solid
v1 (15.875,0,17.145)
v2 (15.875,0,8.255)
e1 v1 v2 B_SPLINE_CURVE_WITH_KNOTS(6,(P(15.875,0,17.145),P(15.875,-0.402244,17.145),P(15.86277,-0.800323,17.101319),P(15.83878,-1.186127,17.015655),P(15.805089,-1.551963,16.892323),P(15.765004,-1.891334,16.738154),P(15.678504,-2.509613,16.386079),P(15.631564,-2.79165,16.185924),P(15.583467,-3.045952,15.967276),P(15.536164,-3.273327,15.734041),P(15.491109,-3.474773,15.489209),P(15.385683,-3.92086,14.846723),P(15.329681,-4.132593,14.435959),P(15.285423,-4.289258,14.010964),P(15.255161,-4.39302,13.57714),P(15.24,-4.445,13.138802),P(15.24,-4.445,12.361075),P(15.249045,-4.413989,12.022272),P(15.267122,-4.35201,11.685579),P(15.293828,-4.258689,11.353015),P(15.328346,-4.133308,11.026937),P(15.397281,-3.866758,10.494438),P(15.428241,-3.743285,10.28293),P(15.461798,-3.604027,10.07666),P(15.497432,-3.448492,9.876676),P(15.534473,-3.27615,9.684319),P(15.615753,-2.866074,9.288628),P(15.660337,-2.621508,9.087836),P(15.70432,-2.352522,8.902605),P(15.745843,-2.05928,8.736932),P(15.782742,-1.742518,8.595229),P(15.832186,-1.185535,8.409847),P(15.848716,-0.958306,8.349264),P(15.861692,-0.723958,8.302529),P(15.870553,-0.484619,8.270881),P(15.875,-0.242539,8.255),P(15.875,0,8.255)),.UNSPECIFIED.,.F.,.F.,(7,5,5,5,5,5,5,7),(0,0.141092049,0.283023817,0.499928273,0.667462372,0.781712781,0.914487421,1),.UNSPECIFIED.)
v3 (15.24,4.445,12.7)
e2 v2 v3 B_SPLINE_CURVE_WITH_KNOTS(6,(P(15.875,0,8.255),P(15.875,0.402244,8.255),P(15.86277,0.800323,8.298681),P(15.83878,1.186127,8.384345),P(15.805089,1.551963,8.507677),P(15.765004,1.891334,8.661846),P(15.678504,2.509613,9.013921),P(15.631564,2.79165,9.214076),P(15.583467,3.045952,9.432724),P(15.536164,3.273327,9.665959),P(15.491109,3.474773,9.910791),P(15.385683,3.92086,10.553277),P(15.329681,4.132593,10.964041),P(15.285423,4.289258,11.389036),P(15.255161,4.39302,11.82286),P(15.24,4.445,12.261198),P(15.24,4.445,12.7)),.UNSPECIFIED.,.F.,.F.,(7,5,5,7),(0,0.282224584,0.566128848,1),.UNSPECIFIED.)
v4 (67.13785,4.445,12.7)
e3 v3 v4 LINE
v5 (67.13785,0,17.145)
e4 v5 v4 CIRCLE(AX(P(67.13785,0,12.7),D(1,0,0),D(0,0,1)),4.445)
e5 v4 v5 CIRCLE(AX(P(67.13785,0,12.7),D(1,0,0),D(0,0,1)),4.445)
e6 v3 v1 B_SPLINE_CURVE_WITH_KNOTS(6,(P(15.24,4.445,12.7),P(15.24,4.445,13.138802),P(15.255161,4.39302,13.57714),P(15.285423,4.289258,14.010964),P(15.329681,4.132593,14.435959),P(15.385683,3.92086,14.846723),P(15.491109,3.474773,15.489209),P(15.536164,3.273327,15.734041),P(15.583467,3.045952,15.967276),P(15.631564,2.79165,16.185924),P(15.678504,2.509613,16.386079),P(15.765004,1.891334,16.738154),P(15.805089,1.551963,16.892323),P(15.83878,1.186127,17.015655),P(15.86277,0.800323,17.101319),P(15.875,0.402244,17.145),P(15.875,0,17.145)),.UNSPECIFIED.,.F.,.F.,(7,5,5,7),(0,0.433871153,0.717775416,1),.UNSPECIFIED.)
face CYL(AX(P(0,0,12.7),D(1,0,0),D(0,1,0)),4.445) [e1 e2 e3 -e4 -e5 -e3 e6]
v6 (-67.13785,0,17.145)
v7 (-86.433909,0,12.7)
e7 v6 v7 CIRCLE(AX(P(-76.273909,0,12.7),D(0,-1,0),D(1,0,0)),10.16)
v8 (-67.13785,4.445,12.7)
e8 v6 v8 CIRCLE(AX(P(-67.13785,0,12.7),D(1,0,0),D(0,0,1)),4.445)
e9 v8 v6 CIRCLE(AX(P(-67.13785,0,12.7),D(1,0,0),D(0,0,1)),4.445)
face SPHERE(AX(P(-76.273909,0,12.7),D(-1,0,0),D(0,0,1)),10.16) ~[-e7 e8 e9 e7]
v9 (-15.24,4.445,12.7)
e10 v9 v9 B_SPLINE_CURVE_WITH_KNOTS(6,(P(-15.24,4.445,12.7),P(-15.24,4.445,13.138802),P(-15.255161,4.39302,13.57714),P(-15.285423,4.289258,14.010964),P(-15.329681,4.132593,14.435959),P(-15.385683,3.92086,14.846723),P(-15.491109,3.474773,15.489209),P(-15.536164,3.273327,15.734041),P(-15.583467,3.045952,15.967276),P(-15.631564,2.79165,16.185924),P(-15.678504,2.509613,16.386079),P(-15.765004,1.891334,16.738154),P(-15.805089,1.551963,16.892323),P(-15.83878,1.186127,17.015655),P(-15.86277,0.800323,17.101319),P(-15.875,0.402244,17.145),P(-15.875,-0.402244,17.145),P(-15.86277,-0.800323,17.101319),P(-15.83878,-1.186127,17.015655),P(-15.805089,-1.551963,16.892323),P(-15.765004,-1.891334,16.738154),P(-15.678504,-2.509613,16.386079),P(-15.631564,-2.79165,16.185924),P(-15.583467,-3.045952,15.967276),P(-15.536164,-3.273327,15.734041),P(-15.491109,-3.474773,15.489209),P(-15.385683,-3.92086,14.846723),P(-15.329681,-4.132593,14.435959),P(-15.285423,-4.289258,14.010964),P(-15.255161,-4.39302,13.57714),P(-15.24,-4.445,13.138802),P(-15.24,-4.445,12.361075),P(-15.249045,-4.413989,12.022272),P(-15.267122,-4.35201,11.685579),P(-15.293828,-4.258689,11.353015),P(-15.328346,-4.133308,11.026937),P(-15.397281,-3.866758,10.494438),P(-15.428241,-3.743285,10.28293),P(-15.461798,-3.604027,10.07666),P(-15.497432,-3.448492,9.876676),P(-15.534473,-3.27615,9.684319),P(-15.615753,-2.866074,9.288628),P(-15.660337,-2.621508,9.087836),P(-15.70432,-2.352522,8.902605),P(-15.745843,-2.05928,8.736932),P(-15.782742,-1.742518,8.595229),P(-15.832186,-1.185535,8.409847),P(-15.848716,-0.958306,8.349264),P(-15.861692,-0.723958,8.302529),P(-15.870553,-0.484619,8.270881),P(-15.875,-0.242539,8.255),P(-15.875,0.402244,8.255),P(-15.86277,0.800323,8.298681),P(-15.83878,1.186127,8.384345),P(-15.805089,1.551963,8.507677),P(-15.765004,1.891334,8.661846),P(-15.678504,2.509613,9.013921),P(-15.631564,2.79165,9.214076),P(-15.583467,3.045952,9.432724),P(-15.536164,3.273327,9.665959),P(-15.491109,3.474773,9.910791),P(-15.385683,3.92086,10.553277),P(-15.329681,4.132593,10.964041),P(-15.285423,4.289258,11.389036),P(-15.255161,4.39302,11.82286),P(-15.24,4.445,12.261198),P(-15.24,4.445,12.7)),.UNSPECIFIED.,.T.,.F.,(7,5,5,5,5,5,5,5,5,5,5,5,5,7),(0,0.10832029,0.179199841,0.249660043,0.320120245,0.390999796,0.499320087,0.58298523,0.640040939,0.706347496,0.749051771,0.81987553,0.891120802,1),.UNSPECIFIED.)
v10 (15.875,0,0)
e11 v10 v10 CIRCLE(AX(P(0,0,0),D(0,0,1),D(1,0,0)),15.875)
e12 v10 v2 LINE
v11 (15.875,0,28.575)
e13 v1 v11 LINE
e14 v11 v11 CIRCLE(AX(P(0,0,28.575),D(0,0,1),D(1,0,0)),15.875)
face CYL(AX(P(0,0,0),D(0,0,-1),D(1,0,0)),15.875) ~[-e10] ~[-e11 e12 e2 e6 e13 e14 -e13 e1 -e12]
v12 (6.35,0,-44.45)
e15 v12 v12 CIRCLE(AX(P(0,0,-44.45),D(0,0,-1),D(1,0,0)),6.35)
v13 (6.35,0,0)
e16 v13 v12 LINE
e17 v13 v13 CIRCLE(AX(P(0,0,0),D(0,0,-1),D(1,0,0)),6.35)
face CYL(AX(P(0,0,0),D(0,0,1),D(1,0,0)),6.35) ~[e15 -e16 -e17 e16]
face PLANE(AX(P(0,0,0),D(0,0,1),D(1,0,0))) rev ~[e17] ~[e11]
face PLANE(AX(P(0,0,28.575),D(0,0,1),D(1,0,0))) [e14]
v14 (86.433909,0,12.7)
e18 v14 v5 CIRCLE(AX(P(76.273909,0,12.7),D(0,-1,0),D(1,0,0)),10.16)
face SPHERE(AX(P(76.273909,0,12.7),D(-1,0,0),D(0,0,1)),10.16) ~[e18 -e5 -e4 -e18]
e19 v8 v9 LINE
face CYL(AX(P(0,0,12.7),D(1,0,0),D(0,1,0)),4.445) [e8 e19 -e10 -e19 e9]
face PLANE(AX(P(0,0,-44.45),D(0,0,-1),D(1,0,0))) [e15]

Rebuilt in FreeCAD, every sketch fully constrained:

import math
import FreeCAD as App
import Part
import Sketcher
Q = App.Units.Quantity

doc = App.newDocument("Part")
body = doc.addObject("PartDesign::Body", "Body")

sketch1 = doc.addObject("Sketcher::SketchObject", "Sketch")
body.addObject(sketch1)
sketch1.AttachmentSupport = (doc.XY_Plane, [""])
sketch1.MapMode = "FlatFace"
sketch1.addGeometry(Part.Circle(App.Vector(0, 0, 0), App.Vector(0, 0, 1), 15.875), False)
sketch1.addConstraint(Sketcher.Constraint("Coincident", 0, 3, -1, 1))
sketch1.addConstraint(Sketcher.Constraint("Diameter", 0, Q("1.25 in")))
pad1 = doc.addObject("PartDesign::Pad", "Pad")
body.addObject(pad1)
pad1.Profile = sketch1
pad1.Length = Q("1.125 in")

sketch2 = doc.addObject("Sketcher::SketchObject", "Sketch001")
body.addObject(sketch2)
sketch2.AttachmentSupport = (doc.XY_Plane, [""])
sketch2.MapMode = "FlatFace"
sketch2.addGeometry(Part.Circle(App.Vector(0, 0, 0), App.Vector(0, 0, 1), 6.35), False)
sketch2.addConstraint(Sketcher.Constraint("Coincident", 0, 3, -1, 1))
sketch2.addConstraint(Sketcher.Constraint("Diameter", 0, Q("0.5 in")))
pad2 = doc.addObject("PartDesign::Pad", "Pad001")
body.addObject(pad2)
pad2.Profile = sketch2
pad2.Length = Q("1.75 in")
pad2.Reversed = True

sketch3 = doc.addObject("Sketcher::SketchObject", "Sketch002")
body.addObject(sketch3)
sketch3.AttachmentSupport = (doc.YZ_Plane, [""])
sketch3.MapMode = "FlatFace"
sketch3.addGeometry(Part.Circle(App.Vector(0, 12.7, 0), App.Vector(0, 0, 1), 4.445), False)
sketch3.addConstraint(Sketcher.Constraint("PointOnObject", 0, 3, -2))
sketch3.addConstraint(Sketcher.Constraint("Diameter", 0, Q("0.35 in")))
sketch3.addConstraint(Sketcher.Constraint("DistanceY", -1, 1, 0, 3, Q("0.5 in")))
pad3 = doc.addObject("PartDesign::Pad", "Pad002")
body.addObject(pad3)
pad3.Profile = sketch3
pad3.Length = Q("6 in")
pad3.Midplane = True

sketch4 = doc.addObject("Sketcher::SketchObject", "Sketch003")
body.addObject(sketch4)
sketch4.AttachmentSupport = (doc.XZ_Plane, [""])
sketch4.MapMode = "FlatFace"
sketch4.addGeometry(Part.LineSegment(App.Vector(-86.433909, 12.7, 0), App.Vector(-66.113909, 12.7, 0)), False)
sketch4.addGeometry(Part.ArcOfCircle(Part.Circle(App.Vector(-76.273909, 12.7, 0), App.Vector(0, 0, 1), 10.16), math.radians(0), math.radians(180)), False)
sketch4.addGeometry(Part.ArcOfCircle(Part.Circle(App.Vector(76.273909, 12.7, 0), App.Vector(0, 0, 1), 10.16), math.radians(0), math.radians(180)), False)
sketch4.addGeometry(Part.LineSegment(App.Vector(66.113909, 12.7, 0), App.Vector(86.433909, 12.7, 0)), False)
sketch4.addGeometry(Part.LineSegment(App.Vector(-86.433909, 12.7, 0), App.Vector(86.433909, 12.7, 0)), True)
sketch4.addConstraint(Sketcher.Constraint("Coincident", 0, 1, 1, 2))
sketch4.addConstraint(Sketcher.Constraint("Coincident", 1, 1, 0, 2))
sketch4.addConstraint(Sketcher.Constraint("Coincident", 2, 1, 3, 2))
sketch4.addConstraint(Sketcher.Constraint("Coincident", 3, 1, 2, 2))
sketch4.addConstraint(Sketcher.Constraint("Horizontal", 0))
sketch4.addConstraint(Sketcher.Constraint("Horizontal", 3))
sketch4.addConstraint(Sketcher.Constraint("Horizontal", 4))
sketch4.addConstraint(Sketcher.Constraint("Coincident", 4, 1, 0, 1))
sketch4.addConstraint(Sketcher.Constraint("Coincident", 4, 2, 2, 1))
sketch4.addConstraint(Sketcher.Constraint("Equal", 1, 2))
sketch4.addConstraint(Sketcher.Constraint("Symmetric", 1, 3, 2, 3, -2))
sketch4.addConstraint(Sketcher.Constraint("Horizontal", 2, 3, 0, 1))
sketch4.addConstraint(Sketcher.Constraint("Radius", 1, Q("0.4 in")))
sketch4.addConstraint(Sketcher.Constraint("DistanceY", -1, 1, 1, 3, Q("0.5 in")))
sketch4.addConstraint(Sketcher.Constraint("DistanceX", 4, 1, 4, 2, 172.867818))
revolution = doc.addObject("PartDesign::Revolution", "Revolution")
body.addObject(revolution)
revolution.Profile = sketch4
revolution.ReferenceAxis = (sketch4, ["Axis0"])
revolution.Angle = 360

doc.recompute()
